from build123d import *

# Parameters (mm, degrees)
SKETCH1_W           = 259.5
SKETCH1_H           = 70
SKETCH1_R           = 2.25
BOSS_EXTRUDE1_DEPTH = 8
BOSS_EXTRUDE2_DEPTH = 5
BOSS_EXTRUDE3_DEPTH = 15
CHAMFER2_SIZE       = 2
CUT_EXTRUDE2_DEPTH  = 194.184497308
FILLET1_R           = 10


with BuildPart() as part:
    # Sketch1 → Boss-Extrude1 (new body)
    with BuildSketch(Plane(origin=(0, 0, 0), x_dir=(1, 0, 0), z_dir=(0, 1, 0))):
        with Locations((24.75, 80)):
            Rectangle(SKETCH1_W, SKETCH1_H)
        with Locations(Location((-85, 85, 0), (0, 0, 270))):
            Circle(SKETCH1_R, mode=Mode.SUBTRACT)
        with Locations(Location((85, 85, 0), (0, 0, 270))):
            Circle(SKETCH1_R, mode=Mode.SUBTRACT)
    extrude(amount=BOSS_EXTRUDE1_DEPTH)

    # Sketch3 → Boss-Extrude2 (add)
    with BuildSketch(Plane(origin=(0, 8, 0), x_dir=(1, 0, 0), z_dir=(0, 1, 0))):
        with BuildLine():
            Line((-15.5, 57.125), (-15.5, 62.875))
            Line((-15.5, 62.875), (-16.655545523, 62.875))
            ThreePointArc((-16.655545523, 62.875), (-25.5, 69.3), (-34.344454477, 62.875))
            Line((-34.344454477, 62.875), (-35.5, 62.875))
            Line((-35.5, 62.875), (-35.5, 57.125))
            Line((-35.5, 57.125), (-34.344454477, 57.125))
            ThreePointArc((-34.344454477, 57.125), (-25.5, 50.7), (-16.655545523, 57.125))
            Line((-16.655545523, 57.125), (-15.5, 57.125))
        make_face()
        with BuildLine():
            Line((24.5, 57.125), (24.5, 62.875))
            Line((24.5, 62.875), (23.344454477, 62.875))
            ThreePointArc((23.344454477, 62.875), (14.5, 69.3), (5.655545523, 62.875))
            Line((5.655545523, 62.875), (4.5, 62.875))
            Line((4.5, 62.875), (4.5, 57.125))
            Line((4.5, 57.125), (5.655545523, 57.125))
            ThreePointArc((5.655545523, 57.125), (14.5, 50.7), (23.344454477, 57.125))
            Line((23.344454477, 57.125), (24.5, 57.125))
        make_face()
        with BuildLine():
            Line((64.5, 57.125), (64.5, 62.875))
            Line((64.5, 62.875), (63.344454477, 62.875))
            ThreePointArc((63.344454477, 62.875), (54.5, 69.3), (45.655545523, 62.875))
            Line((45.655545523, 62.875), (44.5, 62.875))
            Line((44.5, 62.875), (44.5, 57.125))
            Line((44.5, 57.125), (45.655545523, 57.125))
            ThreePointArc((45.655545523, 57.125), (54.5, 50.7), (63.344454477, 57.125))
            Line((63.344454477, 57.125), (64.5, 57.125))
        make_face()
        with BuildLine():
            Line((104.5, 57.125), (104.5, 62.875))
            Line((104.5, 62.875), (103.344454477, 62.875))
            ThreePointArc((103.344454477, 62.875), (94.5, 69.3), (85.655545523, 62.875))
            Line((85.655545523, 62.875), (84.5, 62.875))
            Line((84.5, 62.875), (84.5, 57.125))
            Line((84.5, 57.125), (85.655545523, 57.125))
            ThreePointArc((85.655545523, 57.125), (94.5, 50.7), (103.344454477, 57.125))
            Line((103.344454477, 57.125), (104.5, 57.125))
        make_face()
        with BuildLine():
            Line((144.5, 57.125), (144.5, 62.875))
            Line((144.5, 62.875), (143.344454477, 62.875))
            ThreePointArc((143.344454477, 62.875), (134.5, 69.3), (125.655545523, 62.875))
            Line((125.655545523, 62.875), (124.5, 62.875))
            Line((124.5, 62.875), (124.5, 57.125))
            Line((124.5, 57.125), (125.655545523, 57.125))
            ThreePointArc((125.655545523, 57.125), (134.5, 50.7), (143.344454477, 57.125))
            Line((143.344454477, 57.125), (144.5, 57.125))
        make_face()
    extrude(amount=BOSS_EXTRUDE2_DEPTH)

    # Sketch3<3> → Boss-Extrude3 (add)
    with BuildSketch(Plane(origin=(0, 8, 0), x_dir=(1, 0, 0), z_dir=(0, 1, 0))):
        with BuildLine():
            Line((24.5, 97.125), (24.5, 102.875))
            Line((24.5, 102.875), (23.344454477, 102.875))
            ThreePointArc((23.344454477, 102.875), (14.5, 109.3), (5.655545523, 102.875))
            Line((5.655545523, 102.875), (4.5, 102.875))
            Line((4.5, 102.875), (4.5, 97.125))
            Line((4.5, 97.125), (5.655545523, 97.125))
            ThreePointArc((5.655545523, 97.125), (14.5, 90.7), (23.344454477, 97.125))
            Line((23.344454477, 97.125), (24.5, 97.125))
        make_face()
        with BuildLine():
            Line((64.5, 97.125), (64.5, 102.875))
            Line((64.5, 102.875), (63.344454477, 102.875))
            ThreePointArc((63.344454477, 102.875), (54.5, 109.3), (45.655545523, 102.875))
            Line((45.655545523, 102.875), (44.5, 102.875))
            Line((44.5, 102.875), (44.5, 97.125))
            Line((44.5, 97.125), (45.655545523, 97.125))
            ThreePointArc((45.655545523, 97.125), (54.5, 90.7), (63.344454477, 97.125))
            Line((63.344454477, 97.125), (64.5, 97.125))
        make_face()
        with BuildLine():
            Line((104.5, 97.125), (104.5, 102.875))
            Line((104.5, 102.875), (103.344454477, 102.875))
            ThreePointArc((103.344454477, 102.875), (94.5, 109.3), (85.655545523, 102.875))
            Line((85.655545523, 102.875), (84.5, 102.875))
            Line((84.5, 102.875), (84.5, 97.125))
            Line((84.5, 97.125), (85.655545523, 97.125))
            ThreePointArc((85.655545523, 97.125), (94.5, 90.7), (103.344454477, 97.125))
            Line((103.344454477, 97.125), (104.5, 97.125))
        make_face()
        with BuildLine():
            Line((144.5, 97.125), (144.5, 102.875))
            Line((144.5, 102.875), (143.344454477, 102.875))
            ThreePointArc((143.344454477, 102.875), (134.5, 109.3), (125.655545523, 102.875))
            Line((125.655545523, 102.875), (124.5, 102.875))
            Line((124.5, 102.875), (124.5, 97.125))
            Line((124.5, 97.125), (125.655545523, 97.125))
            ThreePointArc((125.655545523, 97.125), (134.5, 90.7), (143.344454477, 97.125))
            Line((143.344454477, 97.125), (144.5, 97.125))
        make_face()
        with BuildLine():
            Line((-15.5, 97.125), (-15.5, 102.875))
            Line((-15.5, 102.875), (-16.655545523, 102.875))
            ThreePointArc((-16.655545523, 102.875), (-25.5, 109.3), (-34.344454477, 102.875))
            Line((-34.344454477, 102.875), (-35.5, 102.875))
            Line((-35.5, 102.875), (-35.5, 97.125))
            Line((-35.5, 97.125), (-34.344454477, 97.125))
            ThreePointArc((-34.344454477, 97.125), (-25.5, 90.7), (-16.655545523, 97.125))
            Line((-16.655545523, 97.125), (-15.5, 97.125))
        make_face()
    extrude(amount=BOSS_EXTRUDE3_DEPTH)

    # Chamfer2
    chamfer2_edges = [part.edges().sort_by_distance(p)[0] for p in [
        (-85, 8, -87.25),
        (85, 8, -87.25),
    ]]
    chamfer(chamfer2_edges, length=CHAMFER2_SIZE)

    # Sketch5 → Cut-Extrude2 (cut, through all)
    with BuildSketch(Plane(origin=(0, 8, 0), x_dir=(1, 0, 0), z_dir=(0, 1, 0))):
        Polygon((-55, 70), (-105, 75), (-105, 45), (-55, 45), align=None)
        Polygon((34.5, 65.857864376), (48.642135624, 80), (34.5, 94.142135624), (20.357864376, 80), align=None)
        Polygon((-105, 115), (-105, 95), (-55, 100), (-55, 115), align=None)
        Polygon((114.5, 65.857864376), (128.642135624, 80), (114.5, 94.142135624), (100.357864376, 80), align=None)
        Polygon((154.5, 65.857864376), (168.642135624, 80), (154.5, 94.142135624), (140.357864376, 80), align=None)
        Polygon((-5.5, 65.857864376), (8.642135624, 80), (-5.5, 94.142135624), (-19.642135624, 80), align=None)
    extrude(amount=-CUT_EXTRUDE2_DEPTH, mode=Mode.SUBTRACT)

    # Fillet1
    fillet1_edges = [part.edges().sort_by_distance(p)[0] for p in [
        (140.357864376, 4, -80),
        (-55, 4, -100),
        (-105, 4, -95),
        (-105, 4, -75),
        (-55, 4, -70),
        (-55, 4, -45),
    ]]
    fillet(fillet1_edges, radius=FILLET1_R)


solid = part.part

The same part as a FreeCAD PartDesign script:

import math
import FreeCAD as App
import Part
import Sketcher


def edges_at(feature, points):
    """Names of the edges that pass closest to the given points."""
    edges = feature.Shape.Edges
    near = lambda p: min(range(len(edges)), key=lambda i: edges[i].distToShape(Part.Vertex(*p))[0])
    return sorted({f"Edge{near(p) + 1}" for p in points})


def add_polygon(sketch, points):
    """Adds a closed chain of lines whose ends are joined by coincident constraints."""
    first, n = sketch.GeometryCount, len(points)
    for a, b in zip(points, points[1:] + points[:1]):
        sketch.addGeometry(Part.LineSegment(App.Vector(*a, 0), App.Vector(*b, 0)), False)
    for i in range(n):
        sketch.addConstraint(Sketcher.Constraint("Coincident", first + i, 2, first + (i + 1) % n, 1))

doc = App.newDocument("Part")
params = doc.addObject("Spreadsheet::Sheet", "Params")
for row, (alias, value) in enumerate([
    ("sketch1_diameter", "4.5 mm"),
    ("sketch1_height", "70 mm"),
    ("sketch1_width", "259.5 mm"),
    ("pad1_length", "8 mm"),
    ("sketch2_radius", "9.3 mm"),
    ("sketch2_height", "5.75 mm"),
    ("pad2_length", "5 mm"),
    ("sketch3_radius", "9.3 mm"),
    ("sketch3_height", "5.75 mm"),
    ("pad3_length", "15 mm"),
    ("chamfer_size", "2 mm"),
    ("sketch4_width", "50 mm"),
    ("sketch4_height", "30 mm"),
    ("sketch4_height2", "25 mm"),
    ("sketch4_height3", "20 mm"),
    ("sketch4_length", "20 mm"),
    ("fillet_radius", "10 mm"),
], start=1):
    params.set(f"A{row}", alias)
    params.set(f"B{row}", "=" + value)
    params.setAlias(f"B{row}", alias)

body = doc.addObject("PartDesign::Body", "Body")

# Sketch on XZ plane
sketch1 = doc.addObject("Sketcher::SketchObject", "Sketch")
body.addObject(sketch1)
sketch1.AttachmentSupport = (doc.XZ_Plane, [""])
sketch1.MapMode = "FlatFace"
add_polygon(sketch1, [(-105, -115), (-105, -45), (154.5, -45), (154.5, -115)])  # lines 0-3
sketch1.addGeometry(Part.Circle(App.Vector(-85, -85, 0), App.Vector(0, 0, 1), 2.2), False)  # 4
sketch1.addGeometry(Part.Circle(App.Vector(85, -85, 0), App.Vector(0, 0, 1), 2.2), False)  # 5
sketch1.addConstraint(Sketcher.Constraint("Vertical", 0))
sketch1.addConstraint(Sketcher.Constraint("Horizontal", 1))
sketch1.addConstraint(Sketcher.Constraint("Vertical", 2))
sketch1.addConstraint(Sketcher.Constraint("Horizontal", 3))
sketch1.addConstraint(Sketcher.Constraint("Equal", 4, 5))
sketch1.addConstraint(Sketcher.Constraint("Symmetric", 4, 3, 5, 3, -2))
sketch1.addConstraint(Sketcher.Constraint("Diameter", 4, 4.5))
sketch1.addConstraint(Sketcher.Constraint("DistanceY", 0, 1, 0, 2, 70.0))
sketch1.addConstraint(Sketcher.Constraint("DistanceX", 1, 1, 1, 2, 259.5))
sketch1.addConstraint(Sketcher.Constraint("DistanceX", 4, 3, -1, 1, 85.0))
sketch1.addConstraint(Sketcher.Constraint("DistanceY", 4, 3, -1, 1, 85.0))
sketch1.addConstraint(Sketcher.Constraint("DistanceX", 0, 2, -1, 1, 105.0))
sketch1.addConstraint(Sketcher.Constraint("DistanceY", 0, 2, -1, 1, 45.0))
sketch1.setExpression("Constraints[10]", "Params.sketch1_diameter")
sketch1.setExpression("Constraints[11]", "Params.sketch1_height")
sketch1.setExpression("Constraints[12]", "Params.sketch1_width")
pad1 = doc.addObject("PartDesign::Pad", "Pad")
body.addObject(pad1)
pad1.Profile = sketch1
pad1.setExpression("Length", "Params.pad1_length")
pad1.Reversed = True

# Sketch on XZ plane
sketch2 = doc.addObject("Sketcher::SketchObject", "Sketch001")
body.addObject(sketch2)
sketch2.AttachmentSupport = (doc.XZ_Plane, [""])
sketch2.MapMode = "FlatFace"
sketch2.AttachmentOffset = App.Placement(App.Vector(0, 0, -8), App.Rotation())
sketch2.addGeometry(Part.LineSegment(App.Vector(-15.5, -57.1, 0), App.Vector(-15.5, -62.9, 0)), False)
sketch2.addGeometry(Part.LineSegment(App.Vector(-15.5, -62.9, 0), App.Vector(-16.7, -62.9, 0)), False)
sketch2.addGeometry(Part.ArcOfCircle(Part.Circle(App.Vector(-25.5, -60, 0), App.Vector(0, 0, 1), 9.3), math.radians(-162), math.radians(-18)), False)
sketch2.addGeometry(Part.LineSegment(App.Vector(-34.3, -62.9, 0), App.Vector(-35.5, -62.9, 0)), False)
sketch2.addGeometry(Part.LineSegment(App.Vector(-35.5, -62.9, 0), App.Vector(-35.5, -57.1, 0)), False)
sketch2.addGeometry(Part.LineSegment(App.Vector(-35.5, -57.1, 0), App.Vector(-34.3, -57.1, 0)), False)
sketch2.addGeometry(Part.ArcOfCircle(Part.Circle(App.Vector(-25.5, -60, 0), App.Vector(0, 0, 1), 9.3), math.radians(18), math.radians(162)), False)
sketch2.addGeometry(Part.LineSegment(App.Vector(-16.7, -57.1, 0), App.Vector(-15.5, -57.1, 0)), False)
sketch2.addGeometry(Part.LineSegment(App.Vector(24.5, -57.1, 0), App.Vector(24.5, -62.9, 0)), False)
sketch2.addGeometry(Part.LineSegment(App.Vector(24.5, -62.9, 0), App.Vector(23.3, -62.9, 0)), False)
sketch2.addGeometry(Part.ArcOfCircle(Part.Circle(App.Vector(14.5, -60, 0), App.Vector(0, 0, 1), 9.3), math.radians(-162), math.radians(-18)), False)
sketch2.addGeometry(Part.LineSegment(App.Vector(5.7, -62.9, 0), App.Vector(4.5, -62.9, 0)), False)
sketch2.addGeometry(Part.LineSegment(App.Vector(4.5, -62.9, 0), App.Vector(4.5, -57.1, 0)), False)
sketch2.addGeometry(Part.LineSegment(App.Vector(4.5, -57.1, 0), App.Vector(5.7, -57.1, 0)), False)
sketch2.addGeometry(Part.ArcOfCircle(Part.Circle(App.Vector(14.5, -60, 0), App.Vector(0, 0, 1), 9.3), math.radians(18), math.radians(162)), False)
sketch2.addGeometry(Part.LineSegment(App.Vector(23.3, -57.1, 0), App.Vector(24.5, -57.1, 0)), False)
sketch2.addGeometry(Part.LineSegment(App.Vector(64.5, -57.1, 0), App.Vector(64.5, -62.9, 0)), False)
sketch2.addGeometry(Part.LineSegment(App.Vector(64.5, -62.9, 0), App.Vector(63.3, -62.9, 0)), False)
sketch2.addGeometry(Part.ArcOfCircle(Part.Circle(App.Vector(54.5, -60, 0), App.Vector(0, 0, 1), 9.3), math.radians(-162), math.radians(-18)), False)
sketch2.addGeometry(Part.LineSegment(App.Vector(45.7, -62.9, 0), App.Vector(44.5, -62.9, 0)), False)
sketch2.addGeometry(Part.LineSegment(App.Vector(44.5, -62.9, 0), App.Vector(44.5, -57.1, 0)), False)
sketch2.addGeometry(Part.LineSegment(App.Vector(44.5, -57.1, 0), App.Vector(45.7, -57.1, 0)), False)
sketch2.addGeometry(Part.ArcOfCircle(Part.Circle(App.Vector(54.5, -60, 0), App.Vector(0, 0, 1), 9.3), math.radians(18), math.radians(162)), False)
sketch2.addGeometry(Part.LineSegment(App.Vector(63.3, -57.1, 0), App.Vector(64.5, -57.1, 0)), False)
sketch2.addGeometry(Part.LineSegment(App.Vector(104.5, -57.1, 0), App.Vector(104.5, -62.9, 0)), False)
sketch2.addGeometry(Part.LineSegment(App.Vector(104.5, -62.9, 0), App.Vector(103.3, -62.9, 0)), False)
sketch2.addGeometry(Part.ArcOfCircle(Part.Circle(App.Vector(94.5, -60, 0), App.Vector(0, 0, 1), 9.3), math.radians(-162), math.radians(-18)), False)
sketch2.addGeometry(Part.LineSegment(App.Vector(85.7, -62.9, 0), App.Vector(84.5, -62.9, 0)), False)
sketch2.addGeometry(Part.LineSegment(App.Vector(84.5, -62.9, 0), App.Vector(84.5, -57.1, 0)), False)
sketch2.addGeometry(Part.LineSegment(App.Vector(84.5, -57.1, 0), App.Vector(85.7, -57.1, 0)), False)
sketch2.addGeometry(Part.ArcOfCircle(Part.Circle(App.Vector(94.5, -60, 0), App.Vector(0, 0, 1), 9.3), math.radians(18), math.radians(162)), False)
sketch2.addGeometry(Part.LineSegment(App.Vector(103.3, -57.1, 0), App.Vector(104.5, -57.1, 0)), False)
sketch2.addGeometry(Part.LineSegment(App.Vector(144.5, -57.1, 0), App.Vector(144.5, -62.9, 0)), False)
sketch2.addGeometry(Part.LineSegment(App.Vector(144.5, -62.9, 0), App.Vector(143.3, -62.9, 0)), False)
sketch2.addGeometry(Part.ArcOfCircle(Part.Circle(App.Vector(134.5, -60, 0), App.Vector(0, 0, 1), 9.3), math.radians(-162), math.radians(-18)), False)
sketch2.addGeometry(Part.LineSegment(App.Vector(125.7, -62.9, 0), App.Vector(124.5, -62.9, 0)), False)
sketch2.addGeometry(Part.LineSegment(App.Vector(124.5, -62.9, 0), App.Vector(124.5, -57.1, 0)), False)
sketch2.addGeometry(Part.LineSegment(App.Vector(124.5, -57.1, 0), App.Vector(125.7, -57.1, 0)), False)
sketch2.addGeometry(Part.ArcOfCircle(Part.Circle(App.Vector(134.5, -60, 0), App.Vector(0, 0, 1), 9.3), math.radians(18), math.radians(162)), False)
sketch2.addGeometry(Part.LineSegment(App.Vector(143.3, -57.1, 0), App.Vector(144.5, -57.1, 0)), False)
sketch2.addConstraint(Sketcher.Constraint("Coincident", 0, 2, 1, 1))
sketch2.addConstraint(Sketcher.Constraint("Coincident", 1, 2, 2, 2))
sketch2.addConstraint(Sketcher.Constraint("Coincident", 2, 1, 3, 1))
sketch2.addConstraint(Sketcher.Constraint("Coincident", 3, 2, 4, 1))
sketch2.addConstraint(Sketcher.Constraint("Coincident", 4, 2, 5, 1))
sketch2.addConstraint(Sketcher.Constraint("Coincident", 5, 2, 6, 2))
sketch2.addConstraint(Sketcher.Constraint("Coincident", 6, 1, 7, 1))
sketch2.addConstraint(Sketcher.Constraint("Coincident", 7, 2, 0, 1))
sketch2.addConstraint(Sketcher.Constraint("Coincident", 8, 2, 9, 1))
sketch2.addConstraint(Sketcher.Constraint("Coincident", 9, 2, 10, 2))
sketch2.addConstraint(Sketcher.Constraint("Coincident", 10, 1, 11, 1))
sketch2.addConstraint(Sketcher.Constraint("Coincident", 11, 2, 12, 1))
sketch2.addConstraint(Sketcher.Constraint("Coincident", 12, 2, 13, 1))
sketch2.addConstraint(Sketcher.Constraint("Coincident", 13, 2, 14, 2))
sketch2.addConstraint(Sketcher.Constraint("Coincident", 14, 1, 15, 1))
sketch2.addConstraint(Sketcher.Constraint("Coincident", 15, 2, 8, 1))
sketch2.addConstraint(Sketcher.Constraint("Coincident", 16, 2, 17, 1))
sketch2.addConstraint(Sketcher.Constraint("Coincident", 17, 2, 18, 2))
sketch2.addConstraint(Sketcher.Constraint("Coincident", 18, 1, 19, 1))
sketch2.addConstraint(Sketcher.Constraint("Coincident", 19, 2, 20, 1))
sketch2.addConstraint(Sketcher.Constraint("Coincident", 20, 2, 21, 1))
sketch2.addConstraint(Sketcher.Constraint("Coincident", 21, 2, 22, 2))
sketch2.addConstraint(Sketcher.Constraint("Coincident", 22, 1, 23, 1))
sketch2.addConstraint(Sketcher.Constraint("Coincident", 23, 2, 16, 1))
sketch2.addConstraint(Sketcher.Constraint("Coincident", 24, 2, 25, 1))
sketch2.addConstraint(Sketcher.Constraint("Coincident", 25, 2, 26, 2))
sketch2.addConstraint(Sketcher.Constraint("Coincident", 26, 1, 27, 1))
sketch2.addConstraint(Sketcher.Constraint("Coincident", 27, 2, 28, 1))
sketch2.addConstraint(Sketcher.Constraint("Coincident", 28, 2, 29, 1))
sketch2.addConstraint(Sketcher.Constraint("Coincident", 29, 2, 30, 2))
sketch2.addConstraint(Sketcher.Constraint("Coincident", 30, 1, 31, 1))
sketch2.addConstraint(Sketcher.Constraint("Coincident", 31, 2, 24, 1))
sketch2.addConstraint(Sketcher.Constraint("Coincident", 32, 2, 33, 1))
sketch2.addConstraint(Sketcher.Constraint("Coincident", 33, 2, 34, 2))
sketch2.addConstraint(Sketcher.Constraint("Coincident", 34, 1, 35, 1))
sketch2.addConstraint(Sketcher.Constraint("Coincident", 35, 2, 36, 1))
sketch2.addConstraint(Sketcher.Constraint("Coincident", 36, 2, 37, 1))
sketch2.addConstraint(Sketcher.Constraint("Coincident", 37, 2, 38, 2))
sketch2.addConstraint(Sketcher.Constraint("Coincident", 38, 1, 39, 1))
sketch2.addConstraint(Sketcher.Constraint("Coincident", 39, 2, 32, 1))
sketch2.addConstraint(Sketcher.Constraint("Vertical", 0))
sketch2.addConstraint(Sketcher.Constraint("Horizontal", 1))
sketch2.addConstraint(Sketcher.Constraint("Horizontal", 3))
sketch2.addConstraint(Sketcher.Constraint("Vertical", 4))
sketch2.addConstraint(Sketcher.Constraint("Horizontal", 5))
sketch2.addConstraint(Sketcher.Constraint("Horizontal", 7))
sketch2.addConstraint(Sketcher.Constraint("Vertical", 8))
sketch2.addConstraint(Sketcher.Constraint("Horizontal", 9))
sketch2.addConstraint(Sketcher.Constraint("Horizontal", 11))
sketch2.addConstraint(Sketcher.Constraint("Vertical", 12))
sketch2.addConstraint(Sketcher.Constraint("Horizontal", 13))
sketch2.addConstraint(Sketcher.Constraint("Horizontal", 15))
sketch2.addConstraint(Sketcher.Constraint("Vertical", 16))
sketch2.addConstraint(Sketcher.Constraint("Horizontal", 17))
sketch2.addConstraint(Sketcher.Constraint("Horizontal", 19))
sketch2.addConstraint(Sketcher.Constraint("Vertical", 20))
sketch2.addConstraint(Sketcher.Constraint("Horizontal", 21))
sketch2.addConstraint(Sketcher.Constraint("Horizontal", 23))
sketch2.addConstraint(Sketcher.Constraint("Vertical", 24))
sketch2.addConstraint(Sketcher.Constraint("Horizontal", 25))
sketch2.addConstraint(Sketcher.Constraint("Horizontal", 27))
sketch2.addConstraint(Sketcher.Constraint("Vertical", 28))
sketch2.addConstraint(Sketcher.Constraint("Horizontal", 29))
sketch2.addConstraint(Sketcher.Constraint("Horizontal", 31))
sketch2.addConstraint(Sketcher.Constraint("Vertical", 32))
sketch2.addConstraint(Sketcher.Constraint("Horizontal", 33))
sketch2.addConstraint(Sketcher.Constraint("Horizontal", 35))
sketch2.addConstraint(Sketcher.Constraint("Vertical", 36))
sketch2.addConstraint(Sketcher.Constraint("Horizontal", 37))
sketch2.addConstraint(Sketcher.Constraint("Horizontal", 39))
sketch2.addConstraint(Sketcher.Constraint("Coincident", 6, 3, 2, 3))
sketch2.addConstraint(Sketcher.Constraint("Coincident", 14, 3, 10, 3))
sketch2.addConstraint(Sketcher.Constraint("Coincident", 22, 3, 18, 3))
sketch2.addConstraint(Sketcher.Constraint("Coincident", 30, 3, 26, 3))
sketch2.addConstraint(Sketcher.Constraint("Coincident", 38, 3, 34, 3))
sketch2.addConstraint(Sketcher.Constraint("Equal", 2, 6))
sketch2.addConstraint(Sketcher.Constraint("Equal", 6, 10))
sketch2.addConstraint(Sketcher.Constraint("Equal", 10, 14))
sketch2.addConstraint(Sketcher.Constraint("Equal", 14, 18))
sketch2.addConstraint(Sketcher.Constraint("Equal", 18, 22))
sketch2.addConstraint(Sketcher.Constraint("Equal", 22, 26))
sketch2.addConstraint(Sketcher.Constraint("Equal", 26, 30))
sketch2.addConstraint(Sketcher.Constraint("Equal", 30, 34))
sketch2.addConstraint(Sketcher.Constraint("Equal", 34, 38))
sketch2.addConstraint(Sketcher.Constraint("Horizontal", 6, 3, 10, 3))
sketch2.addConstraint(Sketcher.Constraint("Horizontal", 14, 3, 18, 3))
sketch2.addConstraint(Sketcher.Constraint("Horizontal", 22, 3, 26, 3))
sketch2.addConstraint(Sketcher.Constraint("Horizontal", 30, 3, 34, 3))
sketch2.addConstraint(Sketcher.Constraint("Horizontal", 1, 2, 2, 1))
sketch2.addConstraint(Sketcher.Constraint("Horizontal", 5, 2, 6, 1))
sketch2.addConstraint(Sketcher.Constraint("Horizontal", 3, 2, 8, 2))
sketch2.addConstraint(Sketcher.Constraint("Horizontal", 9, 2, 10, 1))
sketch2.addConstraint(Sketcher.Constraint("Horizontal", 7, 2, 12, 2))
sketch2.addConstraint(Sketcher.Constraint("Horizontal", 13, 2, 14, 1))
sketch2.addConstraint(Sketcher.Constraint("Horizontal", 11, 2, 16, 2))
sketch2.addConstraint(Sketcher.Constraint("Horizontal", 17, 2, 18, 1))
sketch2.addConstraint(Sketcher.Constraint("Horizontal", 15, 2, 20, 2))
sketch2.addConstraint(Sketcher.Constraint("Horizontal", 21, 2, 22, 1))
sketch2.addConstraint(Sketcher.Constraint("Horizontal", 19, 2, 24, 2))
sketch2.addConstraint(Sketcher.Constraint("Horizontal", 25, 2, 26, 1))
sketch2.addConstraint(Sketcher.Constraint("Horizontal", 23, 2, 28, 2))
sketch2.addConstraint(Sketcher.Constraint("Horizontal", 29, 2, 30, 1))
sketch2.addConstraint(Sketcher.Constraint("Horizontal", 27, 2, 32, 2))
sketch2.addConstraint(Sketcher.Constraint("Horizontal", 33, 2, 34, 1))
sketch2.addConstraint(Sketcher.Constraint("Horizontal", 31, 2, 36, 2))
sketch2.addConstraint(Sketcher.Constraint("Horizontal", 37, 2, 38, 1))
sketch2.addConstraint(Sketcher.Constraint("Vertical", 2, 1, 5, 2))
sketch2.addConstraint(Sketcher.Constraint("Equal", 1, 3))
sketch2.addConstraint(Sketcher.Constraint("Equal", 7, 9))
sketch2.addConstraint(Sketcher.Constraint("Equal", 9, 11))
sketch2.addConstraint(Sketcher.Constraint("Equal", 15, 17))
sketch2.addConstraint(Sketcher.Constraint("Equal", 17, 19))
sketch2.addConstraint(Sketcher.Constraint("Equal", 23, 25))
sketch2.addConstraint(Sketcher.Constraint("Equal", 25, 27))
sketch2.addConstraint(Sketcher.Constraint("Equal", 31, 33))
sketch2.addConstraint(Sketcher.Constraint("Equal", 33, 35))
sketch2.addConstraint(Sketcher.Constraint("Radius", 2, 9.3))
sketch2.addConstraint(Sketcher.Constraint("DistanceY", 2, 3, -1, 1, 60.0))
sketch2.addConstraint(Sketcher.Constraint("DistanceX", 2, 3, 10, 3, 40.0))
sketch2.addConstraint(Sketcher.Constraint("DistanceX", 10, 3, 18, 3, 40.0))
sketch2.addConstraint(Sketcher.Constraint("DistanceX", 18, 3, 26, 3, 40.0))
sketch2.addConstraint(Sketcher.Constraint("DistanceX", 26, 3, 34, 3, 40.0))
sketch2.addConstraint(Sketcher.Constraint("DistanceX", 2, 3, 0, 2, 10.0))
sketch2.addConstraint(Sketcher.Constraint("DistanceY", 0, 2, 0, 1, 5.75))
sketch2.addConstraint(Sketcher.Constraint("DistanceX", 2, 3, -1, 1, 25.5))
sketch2.setExpression("Constraints[116]", "Params.sketch2_radius")
sketch2.setExpression("Constraints[123]", "Params.sketch2_height")
pad2 = doc.addObject("PartDesign::Pad", "Pad001")
body.addObject(pad2)
pad2.Profile = sketch2
pad2.setExpression("Length", "Params.pad2_length")
pad2.Reversed = True

# Sketch on XZ plane
sketch3 = doc.addObject("Sketcher::SketchObject", "Sketch002")
body.addObject(sketch3)
sketch3.AttachmentSupport = (doc.XZ_Plane, [""])
sketch3.MapMode = "FlatFace"
sketch3.AttachmentOffset = App.Placement(App.Vector(0, 0, -8), App.Rotation())
sketch3.addGeometry(Part.LineSegment(App.Vector(24.5, -97.1, 0), App.Vector(24.5, -102.9, 0)), False)
sketch3.addGeometry(Part.LineSegment(App.Vector(24.5, -102.9, 0), App.Vector(23.3, -102.9, 0)), False)
sketch3.addGeometry(Part.ArcOfCircle(Part.Circle(App.Vector(14.5, -100, 0), App.Vector(0, 0, 1), 9.3), math.radians(-162), math.radians(-18)), False)
sketch3.addGeometry(Part.LineSegment(App.Vector(5.7, -102.9, 0), App.Vector(4.5, -102.9, 0)), False)
sketch3.addGeometry(Part.LineSegment(App.Vector(4.5, -102.9, 0), App.Vector(4.5, -97.1, 0)), False)
sketch3.addGeometry(Part.LineSegment(App.Vector(4.5, -97.1, 0), App.Vector(5.7, -97.1, 0)), False)
sketch3.addGeometry(Part.ArcOfCircle(Part.Circle(App.Vector(14.5, -100, 0), App.Vector(0, 0, 1), 9.3), math.radians(18), math.radians(162)), False)
sketch3.addGeometry(Part.LineSegment(App.Vector(23.3, -97.1, 0), App.Vector(24.5, -97.1, 0)), False)
sketch3.addGeometry(Part.LineSegment(App.Vector(64.5, -97.1, 0), App.Vector(64.5, -102.9, 0)), False)
sketch3.addGeometry(Part.LineSegment(App.Vector(64.5, -102.9, 0), App.Vector(63.3, -102.9, 0)), False)
sketch3.addGeometry(Part.ArcOfCircle(Part.Circle(App.Vector(54.5, -100, 0), App.Vector(0, 0, 1), 9.3), math.radians(-162), math.radians(-18)), False)
sketch3.addGeometry(Part.LineSegment(App.Vector(45.7, -102.9, 0), App.Vector(44.5, -102.9, 0)), False)
sketch3.addGeometry(Part.LineSegment(App.Vector(44.5, -102.9, 0), App.Vector(44.5, -97.1, 0)), False)
sketch3.addGeometry(Part.LineSegment(App.Vector(44.5, -97.1, 0), App.Vector(45.7, -97.1, 0)), False)
sketch3.addGeometry(Part.ArcOfCircle(Part.Circle(App.Vector(54.5, -100, 0), App.Vector(0, 0, 1), 9.3), math.radians(18), math.radians(162)), False)
sketch3.addGeometry(Part.LineSegment(App.Vector(63.3, -97.1, 0), App.Vector(64.5, -97.1, 0)), False)
sketch3.addGeometry(Part.LineSegment(App.Vector(104.5, -97.1, 0), App.Vector(104.5, -102.9, 0)), False)
sketch3.addGeometry(Part.LineSegment(App.Vector(104.5, -102.9, 0), App.Vector(103.3, -102.9, 0)), False)
sketch3.addGeometry(Part.ArcOfCircle(Part.Circle(App.Vector(94.5, -100, 0), App.Vector(0, 0, 1), 9.3), math.radians(-162), math.radians(-18)), False)
sketch3.addGeometry(Part.LineSegment(App.Vector(85.7, -102.9, 0), App.Vector(84.5, -102.9, 0)), False)
sketch3.addGeometry(Part.LineSegment(App.Vector(84.5, -102.9, 0), App.Vector(84.5, -97.1, 0)), False)
sketch3.addGeometry(Part.LineSegment(App.Vector(84.5, -97.1, 0), App.Vector(85.7, -97.1, 0)), False)
sketch3.addGeometry(Part.ArcOfCircle(Part.Circle(App.Vector(94.5, -100, 0), App.Vector(0, 0, 1), 9.3), math.radians(18), math.radians(162)), False)
sketch3.addGeometry(Part.LineSegment(App.Vector(103.3, -97.1, 0), App.Vector(104.5, -97.1, 0)), False)
sketch3.addGeometry(Part.LineSegment(App.Vector(144.5, -97.1, 0), App.Vector(144.5, -102.9, 0)), False)
sketch3.addGeometry(Part.LineSegment(App.Vector(144.5, -102.9, 0), App.Vector(143.3, -102.9, 0)), False)
sketch3.addGeometry(Part.ArcOfCircle(Part.Circle(App.Vector(134.5, -100, 0), App.Vector(0, 0, 1), 9.3), math.radians(-162), math.radians(-18)), False)
sketch3.addGeometry(Part.LineSegment(App.Vector(125.7, -102.9, 0), App.Vector(124.5, -102.9, 0)), False)
sketch3.addGeometry(Part.LineSegment(App.Vector(124.5, -102.9, 0), App.Vector(124.5, -97.1, 0)), False)
sketch3.addGeometry(Part.LineSegment(App.Vector(124.5, -97.1, 0), App.Vector(125.7, -97.1, 0)), False)
sketch3.addGeometry(Part.ArcOfCircle(Part.Circle(App.Vector(134.5, -100, 0), App.Vector(0, 0, 1), 9.3), math.radians(18), math.radians(162)), False)
sketch3.addGeometry(Part.LineSegment(App.Vector(143.3, -97.1, 0), App.Vector(144.5, -97.1, 0)), False)
sketch3.addGeometry(Part.LineSegment(App.Vector(-15.5, -97.1, 0), App.Vector(-15.5, -102.9, 0)), False)
sketch3.addGeometry(Part.LineSegment(App.Vector(-15.5, -102.9, 0), App.Vector(-16.7, -102.9, 0)), False)
sketch3.addGeometry(Part.ArcOfCircle(Part.Circle(App.Vector(-25.5, -100, 0), App.Vector(0, 0, 1), 9.3), math.radians(-162), math.radians(-18)), False)
sketch3.addGeometry(Part.LineSegment(App.Vector(-34.3, -102.9, 0), App.Vector(-35.5, -102.9, 0)), False)
sketch3.addGeometry(Part.LineSegment(App.Vector(-35.5, -102.9, 0), App.Vector(-35.5, -97.1, 0)), False)
sketch3.addGeometry(Part.LineSegment(App.Vector(-35.5, -97.1, 0), App.Vector(-34.3, -97.1, 0)), False)
sketch3.addGeometry(Part.ArcOfCircle(Part.Circle(App.Vector(-25.5, -100, 0), App.Vector(0, 0, 1), 9.3), math.radians(18), math.radians(162)), False)
sketch3.addGeometry(Part.LineSegment(App.Vector(-16.7, -97.1, 0), App.Vector(-15.5, -97.1, 0)), False)
sketch3.addConstraint(Sketcher.Constraint("Coincident", 0, 2, 1, 1))
sketch3.addConstraint(Sketcher.Constraint("Coincident", 1, 2, 2, 2))
sketch3.addConstraint(Sketcher.Constraint("Coincident", 2, 1, 3, 1))
sketch3.addConstraint(Sketcher.Constraint("Coincident", 3, 2, 4, 1))
sketch3.addConstraint(Sketcher.Constraint("Coincident", 4, 2, 5, 1))
sketch3.addConstraint(Sketcher.Constraint("Coincident", 5, 2, 6, 2))
sketch3.addConstraint(Sketcher.Constraint("Coincident", 6, 1, 7, 1))
sketch3.addConstraint(Sketcher.Constraint("Coincident", 7, 2, 0, 1))
sketch3.addConstraint(Sketcher.Constraint("Coincident", 8, 2, 9, 1))
sketch3.addConstraint(Sketcher.Constraint("Coincident", 9, 2, 10, 2))
sketch3.addConstraint(Sketcher.Constraint("Coincident", 10, 1, 11, 1))
sketch3.addConstraint(Sketcher.Constraint("Coincident", 11, 2, 12, 1))
sketch3.addConstraint(Sketcher.Constraint("Coincident", 12, 2, 13, 1))
sketch3.addConstraint(Sketcher.Constraint("Coincident", 13, 2, 14, 2))
sketch3.addConstraint(Sketcher.Constraint("Coincident", 14, 1, 15, 1))
sketch3.addConstraint(Sketcher.Constraint("Coincident", 15, 2, 8, 1))
sketch3.addConstraint(Sketcher.Constraint("Coincident", 16, 2, 17, 1))
sketch3.addConstraint(Sketcher.Constraint("Coincident", 17, 2, 18, 2))
sketch3.addConstraint(Sketcher.Constraint("Coincident", 18, 1, 19, 1))
sketch3.addConstraint(Sketcher.Constraint("Coincident", 19, 2, 20, 1))
sketch3.addConstraint(Sketcher.Constraint("Coincident", 20, 2, 21, 1))
sketch3.addConstraint(Sketcher.Constraint("Coincident", 21, 2, 22, 2))
sketch3.addConstraint(Sketcher.Constraint("Coincident", 22, 1, 23, 1))
sketch3.addConstraint(Sketcher.Constraint("Coincident", 23, 2, 16, 1))
sketch3.addConstraint(Sketcher.Constraint("Coincident", 24, 2, 25, 1))
sketch3.addConstraint(Sketcher.Constraint("Coincident", 25, 2, 26, 2))
sketch3.addConstraint(Sketcher.Constraint("Coincident", 26, 1, 27, 1))
sketch3.addConstraint(Sketcher.Constraint("Coincident", 27, 2, 28, 1))
sketch3.addConstraint(Sketcher.Constraint("Coincident", 28, 2, 29, 1))
sketch3.addConstraint(Sketcher.Constraint("Coincident", 29, 2, 30, 2))
sketch3.addConstraint(Sketcher.Constraint("Coincident", 30, 1, 31, 1))
sketch3.addConstraint(Sketcher.Constraint("Coincident", 31, 2, 24, 1))
sketch3.addConstraint(Sketcher.Constraint("Coincident", 32, 2, 33, 1))
sketch3.addConstraint(Sketcher.Constraint("Coincident", 33, 2, 34, 2))
sketch3.addConstraint(Sketcher.Constraint("Coincident", 34, 1, 35, 1))
sketch3.addConstraint(Sketcher.Constraint("Coincident", 35, 2, 36, 1))
sketch3.addConstraint(Sketcher.Constraint("Coincident", 36, 2, 37, 1))
sketch3.addConstraint(Sketcher.Constraint("Coincident", 37, 2, 38, 2))
sketch3.addConstraint(Sketcher.Constraint("Coincident", 38, 1, 39, 1))
sketch3.addConstraint(Sketcher.Constraint("Coincident", 39, 2, 32, 1))
sketch3.addConstraint(Sketcher.Constraint("Vertical", 0))
sketch3.addConstraint(Sketcher.Constraint("Horizontal", 1))
sketch3.addConstraint(Sketcher.Constraint("Horizontal", 3))
sketch3.addConstraint(Sketcher.Constraint("Vertical", 4))
sketch3.addConstraint(Sketcher.Constraint("Horizontal", 5))
sketch3.addConstraint(Sketcher.Constraint("Horizontal", 7))
sketch3.addConstraint(Sketcher.Constraint("Vertical", 8))
sketch3.addConstraint(Sketcher.Constraint("Horizontal", 9))
sketch3.addConstraint(Sketcher.Constraint("Horizontal", 11))
sketch3.addConstraint(Sketcher.Constraint("Vertical", 12))
sketch3.addConstraint(Sketcher.Constraint("Horizontal", 13))
sketch3.addConstraint(Sketcher.Constraint("Horizontal", 15))
sketch3.addConstraint(Sketcher.Constraint("Vertical", 16))
sketch3.addConstraint(Sketcher.Constraint("Horizontal", 17))
sketch3.addConstraint(Sketcher.Constraint("Horizontal", 19))
sketch3.addConstraint(Sketcher.Constraint("Vertical", 20))
sketch3.addConstraint(Sketcher.Constraint("Horizontal", 21))
sketch3.addConstraint(Sketcher.Constraint("Horizontal", 23))
sketch3.addConstraint(Sketcher.Constraint("Vertical", 24))
sketch3.addConstraint(Sketcher.Constraint("Horizontal", 25))
sketch3.addConstraint(Sketcher.Constraint("Horizontal", 27))
sketch3.addConstraint(Sketcher.Constraint("Vertical", 28))
sketch3.addConstraint(Sketcher.Constraint("Horizontal", 29))
sketch3.addConstraint(Sketcher.Constraint("Horizontal", 31))
sketch3.addConstraint(Sketcher.Constraint("Vertical", 32))
sketch3.addConstraint(Sketcher.Constraint("Horizontal", 33))
sketch3.addConstraint(Sketcher.Constraint("Horizontal", 35))
sketch3.addConstraint(Sketcher.Constraint("Vertical", 36))
sketch3.addConstraint(Sketcher.Constraint("Horizontal", 37))
sketch3.addConstraint(Sketcher.Constraint("Horizontal", 39))
sketch3.addConstraint(Sketcher.Constraint("Coincident", 6, 3, 2, 3))
sketch3.addConstraint(Sketcher.Constraint("Coincident", 14, 3, 10, 3))
sketch3.addConstraint(Sketcher.Constraint("Coincident", 22, 3, 18, 3))
sketch3.addConstraint(Sketcher.Constraint("Coincident", 30, 3, 26, 3))
sketch3.addConstraint(Sketcher.Constraint("Coincident", 38, 3, 34, 3))
sketch3.addConstraint(Sketcher.Constraint("Equal", 2, 6))
sketch3.addConstraint(Sketcher.Constraint("Equal", 6, 10))
sketch3.addConstraint(Sketcher.Constraint("Equal", 10, 14))
sketch3.addConstraint(Sketcher.Constraint("Equal", 14, 18))
sketch3.addConstraint(Sketcher.Constraint("Equal", 18, 22))
sketch3.addConstraint(Sketcher.Constraint("Equal", 22, 26))
sketch3.addConstraint(Sketcher.Constraint("Equal", 26, 30))
sketch3.addConstraint(Sketcher.Constraint("Equal", 30, 34))
sketch3.addConstraint(Sketcher.Constraint("Equal", 34, 38))
sketch3.addConstraint(Sketcher.Constraint("Horizontal", 6, 3, 10, 3))
sketch3.addConstraint(Sketcher.Constraint("Horizontal", 14, 3, 18, 3))
sketch3.addConstraint(Sketcher.Constraint("Horizontal", 22, 3, 26, 3))
sketch3.addConstraint(Sketcher.Constraint("Horizontal", 30, 3, 34, 3))
sketch3.addConstraint(Sketcher.Constraint("Horizontal", 1, 2, 2, 1))
sketch3.addConstraint(Sketcher.Constraint("Horizontal", 5, 2, 6, 1))
sketch3.addConstraint(Sketcher.Constraint("Horizontal", 3, 2, 8, 2))
sketch3.addConstraint(Sketcher.Constraint("Horizontal", 9, 2, 10, 1))
sketch3.addConstraint(Sketcher.Constraint("Horizontal", 7, 2, 12, 2))
sketch3.addConstraint(Sketcher.Constraint("Horizontal", 13, 2, 14, 1))
sketch3.addConstraint(Sketcher.Constraint("Horizontal", 11, 2, 16, 2))
sketch3.addConstraint(Sketcher.Constraint("Horizontal", 17, 2, 18, 1))
sketch3.addConstraint(Sketcher.Constraint("Horizontal", 15, 2, 20, 2))
sketch3.addConstraint(Sketcher.Constraint("Horizontal", 21, 2, 22, 1))
sketch3.addConstraint(Sketcher.Constraint("Horizontal", 19, 2, 24, 2))
sketch3.addConstraint(Sketcher.Constraint("Horizontal", 25, 2, 26, 1))
sketch3.addConstraint(Sketcher.Constraint("Horizontal", 23, 2, 28, 2))
sketch3.addConstraint(Sketcher.Constraint("Horizontal", 29, 2, 30, 1))
sketch3.addConstraint(Sketcher.Constraint("Horizontal", 27, 2, 32, 2))
sketch3.addConstraint(Sketcher.Constraint("Horizontal", 33, 2, 34, 1))
sketch3.addConstraint(Sketcher.Constraint("Horizontal", 31, 2, 36, 2))
sketch3.addConstraint(Sketcher.Constraint("Horizontal", 37, 2, 38, 1))
sketch3.addConstraint(Sketcher.Constraint("Vertical", 2, 1, 5, 2))
sketch3.addConstraint(Sketcher.Constraint("Equal", 1, 3))
sketch3.addConstraint(Sketcher.Constraint("Equal", 7, 9))
sketch3.addConstraint(Sketcher.Constraint("Equal", 9, 11))
sketch3.addConstraint(Sketcher.Constraint("Equal", 15, 17))
sketch3.addConstraint(Sketcher.Constraint("Equal", 17, 19))
sketch3.addConstraint(Sketcher.Constraint("Equal", 23, 25))
sketch3.addConstraint(Sketcher.Constraint("Equal", 25, 27))
sketch3.addConstraint(Sketcher.Constraint("Equal", 31, 33))
sketch3.addConstraint(Sketcher.Constraint("Equal", 33, 35))
sketch3.addConstraint(Sketcher.Constraint("Radius", 2, 9.3))
sketch3.addConstraint(Sketcher.Constraint("DistanceY", 2, 3, -1, 1, 100.0))
sketch3.addConstraint(Sketcher.Constraint("DistanceX", 2, 3, 10, 3, 40.0))
sketch3.addConstraint(Sketcher.Constraint("DistanceX", 10, 3, 18, 3, 40.0))
sketch3.addConstraint(Sketcher.Constraint("DistanceX", 18, 3, 26, 3, 40.0))
sketch3.addConstraint(Sketcher.Constraint("DistanceX", 34, 3, 2, 3, 40.0))
sketch3.addConstraint(Sketcher.Constraint("DistanceX", 2, 3, 0, 2, 10.0))
sketch3.addConstraint(Sketcher.Constraint("DistanceY", 0, 2, 0, 1, 5.75))
sketch3.addConstraint(Sketcher.Constraint("DistanceX", -1, 1, 2, 3, 14.5))
sketch3.setExpression("Constraints[116]", "Params.sketch3_radius")
sketch3.setExpression("Constraints[123]", "Params.sketch3_height")
pad3 = doc.addObject("PartDesign::Pad", "Pad002")
body.addObject(pad3)
pad3.Profile = sketch3
pad3.setExpression("Length", "Params.pad3_length")
pad3.Reversed = True
doc.recompute()

chamfer = doc.addObject("PartDesign::Chamfer", "Chamfer")
body.addObject(chamfer)
chamfer.Base = (pad3, edges_at(pad3, [(-85, 8, -87.25), (85, 8, -87.25)]))
chamfer.setExpression("Size", "Params.chamfer_size")

# Sketch on XZ plane
sketch4 = doc.addObject("Sketcher::SketchObject", "Sketch003")
body.addObject(sketch4)
sketch4.AttachmentSupport = (doc.XZ_Plane, [""])
sketch4.MapMode = "FlatFace"
sketch4.AttachmentOffset = App.Placement(App.Vector(0, 0, -8), App.Rotation())
add_polygon(sketch4, [(-55, -70), (-105, -75), (-105, -45), (-55, -45)])  # lines 0-3
add_polygon(sketch4, [(34, -66), (49, -80), (34, -94), (20, -80)])  # lines 4-7
add_polygon(sketch4, [(-105, -115), (-105, -95), (-55, -100), (-55, -115)])  # lines 8-11
add_polygon(sketch4, [(114, -66), (129, -80), (114, -94), (100, -80)])  # lines 12-15
add_polygon(sketch4, [(154, -66), (169, -80), (154, -94), (140, -80)])  # lines 16-19
add_polygon(sketch4, [(-6, -66), (9, -80), (-6, -94), (-20, -80)])  # lines 20-23
sketch4.addConstraint(Sketcher.Constraint("Vertical", 1))
sketch4.addConstraint(Sketcher.Constraint("Horizontal", 2))
sketch4.addConstraint(Sketcher.Constraint("Vertical", 3))
sketch4.addConstraint(Sketcher.Constraint("Vertical", 8))
sketch4.addConstraint(Sketcher.Constraint("Vertical", 10))
sketch4.addConstraint(Sketcher.Constraint("Horizontal", 11))
sketch4.addConstraint(Sketcher.Constraint("Perpendicular", 4, 5))
sketch4.addConstraint(Sketcher.Constraint("Perpendicular", 5, 6))
sketch4.addConstraint(Sketcher.Constraint("Perpendicular", 6, 7))
sketch4.addConstraint(Sketcher.Constraint("Perpendicular", 7, 12))
sketch4.addConstraint(Sketcher.Constraint("Perpendicular", 12, 13))
sketch4.addConstraint(Sketcher.Constraint("Perpendicular", 13, 14))
sketch4.addConstraint(Sketcher.Constraint("Perpendicular", 14, 15))
sketch4.addConstraint(Sketcher.Constraint("Perpendicular", 15, 16))
sketch4.addConstraint(Sketcher.Constraint("Perpendicular", 16, 17))
sketch4.addConstraint(Sketcher.Constraint("Perpendicular", 17, 18))
sketch4.addConstraint(Sketcher.Constraint("Perpendicular", 18, 19))
sketch4.addConstraint(Sketcher.Constraint("Perpendicular", 19, 20))
sketch4.addConstraint(Sketcher.Constraint("Perpendicular", 20, 21))
sketch4.addConstraint(Sketcher.Constraint("Perpendicular", 21, 22))
sketch4.addConstraint(Sketcher.Constraint("Perpendicular", 22, 23))
sketch4.addConstraint(Sketcher.Constraint("Horizontal", 4, 2, 6, 2))
sketch4.addConstraint(Sketcher.Constraint("Horizontal", 6, 2, 12, 2))
sketch4.addConstraint(Sketcher.Constraint("Horizontal", 5, 2, 13, 2))
sketch4.addConstraint(Sketcher.Constraint("Horizontal", 12, 2, 14, 2))
sketch4.addConstraint(Sketcher.Constraint("Horizontal", 14, 2, 16, 2))
sketch4.addConstraint(Sketcher.Constraint("Horizontal", 13, 2, 17, 2))
sketch4.addConstraint(Sketcher.Constraint("Horizontal", 16, 2, 18, 2))
sketch4.addConstraint(Sketcher.Constraint("Horizontal", 18, 2, 20, 2))
sketch4.addConstraint(Sketcher.Constraint("Horizontal", 17, 2, 21, 2))
sketch4.addConstraint(Sketcher.Constraint("Horizontal", 20, 2, 22, 2))
sketch4.addConstraint(Sketcher.Constraint("Vertical", 5, 2, 7, 2))
sketch4.addConstraint(Sketcher.Constraint("Vertical", 1, 2, 8, 2))
sketch4.addConstraint(Sketcher.Constraint("Vertical", 3, 2, 9, 2))
sketch4.addConstraint(Sketcher.Constraint("Equal", 0, 9))
sketch4.addConstraint(Sketcher.Constraint("DistanceX", 2, 1, 2, 2, 50.0))
sketch4.addConstraint(Sketcher.Constraint("DistanceY", 1, 1, 1, 2, 30.0))
sketch4.addConstraint(Sketcher.Constraint("DistanceY", 3, 2, 3, 1, 25.0))
sketch4.addConstraint(Sketcher.Constraint("DistanceY", 8, 1, 8, 2, 20.0))
sketch4.addConstraint(Sketcher.Constraint("Distance", 4, 20.0))
sketch4.addConstraint(Sketcher.Constraint("DistanceX", 0, 2, -1, 1, 105.0))
sketch4.addConstraint(Sketcher.Constraint("DistanceY", 0, 2, -1, 1, 75.0))
sketch4.addConstraint(Sketcher.Constraint("DistanceY", 4, 2, -1, 1, 80.0))
sketch4.addConstraint(Sketcher.Constraint("DistanceY", 8, 2, -1, 1, 95.0))
sketch4.addConstraint(Sketcher.Constraint("DistanceX", 4, 2, 12, 2, 80.0))
sketch4.addConstraint(Sketcher.Constraint("DistanceX", 12, 2, 16, 2, 40.0))
sketch4.addConstraint(Sketcher.Constraint("DistanceX", 20, 2, 4, 2, 40.0))
sketch4.addConstraint(Sketcher.Constraint("DistanceX", -1, 1, 5, 2, 34.5))
sketch4.setExpression("Constraints[59]", "Params.sketch4_width")
sketch4.setExpression("Constraints[60]", "Params.sketch4_height")
sketch4.setExpression("Constraints[61]", "Params.sketch4_height2")
sketch4.setExpression("Constraints[62]", "Params.sketch4_height3")
sketch4.setExpression("Constraints[63]", "Params.sketch4_length")
pocket1 = doc.addObject("PartDesign::Pocket", "Pocket")
body.addObject(pocket1)
pocket1.Profile = sketch4
pocket1.Type = "ThroughAll"
pocket1.Reversed = True
doc.recompute()

fillet = doc.addObject("PartDesign::Fillet", "Fillet")
body.addObject(fillet)
fillet.Base = (pocket1, edges_at(pocket1, [
    (140.358, 4, -80),
    (-55, 4, -100),
    (-105, 4, -95),
    (-105, 4, -75),
    (-55, 4, -70),
    (-55, 4, -45),
]))
fillet.setExpression("Radius", "Params.fillet_radius")

doc.recompute()
